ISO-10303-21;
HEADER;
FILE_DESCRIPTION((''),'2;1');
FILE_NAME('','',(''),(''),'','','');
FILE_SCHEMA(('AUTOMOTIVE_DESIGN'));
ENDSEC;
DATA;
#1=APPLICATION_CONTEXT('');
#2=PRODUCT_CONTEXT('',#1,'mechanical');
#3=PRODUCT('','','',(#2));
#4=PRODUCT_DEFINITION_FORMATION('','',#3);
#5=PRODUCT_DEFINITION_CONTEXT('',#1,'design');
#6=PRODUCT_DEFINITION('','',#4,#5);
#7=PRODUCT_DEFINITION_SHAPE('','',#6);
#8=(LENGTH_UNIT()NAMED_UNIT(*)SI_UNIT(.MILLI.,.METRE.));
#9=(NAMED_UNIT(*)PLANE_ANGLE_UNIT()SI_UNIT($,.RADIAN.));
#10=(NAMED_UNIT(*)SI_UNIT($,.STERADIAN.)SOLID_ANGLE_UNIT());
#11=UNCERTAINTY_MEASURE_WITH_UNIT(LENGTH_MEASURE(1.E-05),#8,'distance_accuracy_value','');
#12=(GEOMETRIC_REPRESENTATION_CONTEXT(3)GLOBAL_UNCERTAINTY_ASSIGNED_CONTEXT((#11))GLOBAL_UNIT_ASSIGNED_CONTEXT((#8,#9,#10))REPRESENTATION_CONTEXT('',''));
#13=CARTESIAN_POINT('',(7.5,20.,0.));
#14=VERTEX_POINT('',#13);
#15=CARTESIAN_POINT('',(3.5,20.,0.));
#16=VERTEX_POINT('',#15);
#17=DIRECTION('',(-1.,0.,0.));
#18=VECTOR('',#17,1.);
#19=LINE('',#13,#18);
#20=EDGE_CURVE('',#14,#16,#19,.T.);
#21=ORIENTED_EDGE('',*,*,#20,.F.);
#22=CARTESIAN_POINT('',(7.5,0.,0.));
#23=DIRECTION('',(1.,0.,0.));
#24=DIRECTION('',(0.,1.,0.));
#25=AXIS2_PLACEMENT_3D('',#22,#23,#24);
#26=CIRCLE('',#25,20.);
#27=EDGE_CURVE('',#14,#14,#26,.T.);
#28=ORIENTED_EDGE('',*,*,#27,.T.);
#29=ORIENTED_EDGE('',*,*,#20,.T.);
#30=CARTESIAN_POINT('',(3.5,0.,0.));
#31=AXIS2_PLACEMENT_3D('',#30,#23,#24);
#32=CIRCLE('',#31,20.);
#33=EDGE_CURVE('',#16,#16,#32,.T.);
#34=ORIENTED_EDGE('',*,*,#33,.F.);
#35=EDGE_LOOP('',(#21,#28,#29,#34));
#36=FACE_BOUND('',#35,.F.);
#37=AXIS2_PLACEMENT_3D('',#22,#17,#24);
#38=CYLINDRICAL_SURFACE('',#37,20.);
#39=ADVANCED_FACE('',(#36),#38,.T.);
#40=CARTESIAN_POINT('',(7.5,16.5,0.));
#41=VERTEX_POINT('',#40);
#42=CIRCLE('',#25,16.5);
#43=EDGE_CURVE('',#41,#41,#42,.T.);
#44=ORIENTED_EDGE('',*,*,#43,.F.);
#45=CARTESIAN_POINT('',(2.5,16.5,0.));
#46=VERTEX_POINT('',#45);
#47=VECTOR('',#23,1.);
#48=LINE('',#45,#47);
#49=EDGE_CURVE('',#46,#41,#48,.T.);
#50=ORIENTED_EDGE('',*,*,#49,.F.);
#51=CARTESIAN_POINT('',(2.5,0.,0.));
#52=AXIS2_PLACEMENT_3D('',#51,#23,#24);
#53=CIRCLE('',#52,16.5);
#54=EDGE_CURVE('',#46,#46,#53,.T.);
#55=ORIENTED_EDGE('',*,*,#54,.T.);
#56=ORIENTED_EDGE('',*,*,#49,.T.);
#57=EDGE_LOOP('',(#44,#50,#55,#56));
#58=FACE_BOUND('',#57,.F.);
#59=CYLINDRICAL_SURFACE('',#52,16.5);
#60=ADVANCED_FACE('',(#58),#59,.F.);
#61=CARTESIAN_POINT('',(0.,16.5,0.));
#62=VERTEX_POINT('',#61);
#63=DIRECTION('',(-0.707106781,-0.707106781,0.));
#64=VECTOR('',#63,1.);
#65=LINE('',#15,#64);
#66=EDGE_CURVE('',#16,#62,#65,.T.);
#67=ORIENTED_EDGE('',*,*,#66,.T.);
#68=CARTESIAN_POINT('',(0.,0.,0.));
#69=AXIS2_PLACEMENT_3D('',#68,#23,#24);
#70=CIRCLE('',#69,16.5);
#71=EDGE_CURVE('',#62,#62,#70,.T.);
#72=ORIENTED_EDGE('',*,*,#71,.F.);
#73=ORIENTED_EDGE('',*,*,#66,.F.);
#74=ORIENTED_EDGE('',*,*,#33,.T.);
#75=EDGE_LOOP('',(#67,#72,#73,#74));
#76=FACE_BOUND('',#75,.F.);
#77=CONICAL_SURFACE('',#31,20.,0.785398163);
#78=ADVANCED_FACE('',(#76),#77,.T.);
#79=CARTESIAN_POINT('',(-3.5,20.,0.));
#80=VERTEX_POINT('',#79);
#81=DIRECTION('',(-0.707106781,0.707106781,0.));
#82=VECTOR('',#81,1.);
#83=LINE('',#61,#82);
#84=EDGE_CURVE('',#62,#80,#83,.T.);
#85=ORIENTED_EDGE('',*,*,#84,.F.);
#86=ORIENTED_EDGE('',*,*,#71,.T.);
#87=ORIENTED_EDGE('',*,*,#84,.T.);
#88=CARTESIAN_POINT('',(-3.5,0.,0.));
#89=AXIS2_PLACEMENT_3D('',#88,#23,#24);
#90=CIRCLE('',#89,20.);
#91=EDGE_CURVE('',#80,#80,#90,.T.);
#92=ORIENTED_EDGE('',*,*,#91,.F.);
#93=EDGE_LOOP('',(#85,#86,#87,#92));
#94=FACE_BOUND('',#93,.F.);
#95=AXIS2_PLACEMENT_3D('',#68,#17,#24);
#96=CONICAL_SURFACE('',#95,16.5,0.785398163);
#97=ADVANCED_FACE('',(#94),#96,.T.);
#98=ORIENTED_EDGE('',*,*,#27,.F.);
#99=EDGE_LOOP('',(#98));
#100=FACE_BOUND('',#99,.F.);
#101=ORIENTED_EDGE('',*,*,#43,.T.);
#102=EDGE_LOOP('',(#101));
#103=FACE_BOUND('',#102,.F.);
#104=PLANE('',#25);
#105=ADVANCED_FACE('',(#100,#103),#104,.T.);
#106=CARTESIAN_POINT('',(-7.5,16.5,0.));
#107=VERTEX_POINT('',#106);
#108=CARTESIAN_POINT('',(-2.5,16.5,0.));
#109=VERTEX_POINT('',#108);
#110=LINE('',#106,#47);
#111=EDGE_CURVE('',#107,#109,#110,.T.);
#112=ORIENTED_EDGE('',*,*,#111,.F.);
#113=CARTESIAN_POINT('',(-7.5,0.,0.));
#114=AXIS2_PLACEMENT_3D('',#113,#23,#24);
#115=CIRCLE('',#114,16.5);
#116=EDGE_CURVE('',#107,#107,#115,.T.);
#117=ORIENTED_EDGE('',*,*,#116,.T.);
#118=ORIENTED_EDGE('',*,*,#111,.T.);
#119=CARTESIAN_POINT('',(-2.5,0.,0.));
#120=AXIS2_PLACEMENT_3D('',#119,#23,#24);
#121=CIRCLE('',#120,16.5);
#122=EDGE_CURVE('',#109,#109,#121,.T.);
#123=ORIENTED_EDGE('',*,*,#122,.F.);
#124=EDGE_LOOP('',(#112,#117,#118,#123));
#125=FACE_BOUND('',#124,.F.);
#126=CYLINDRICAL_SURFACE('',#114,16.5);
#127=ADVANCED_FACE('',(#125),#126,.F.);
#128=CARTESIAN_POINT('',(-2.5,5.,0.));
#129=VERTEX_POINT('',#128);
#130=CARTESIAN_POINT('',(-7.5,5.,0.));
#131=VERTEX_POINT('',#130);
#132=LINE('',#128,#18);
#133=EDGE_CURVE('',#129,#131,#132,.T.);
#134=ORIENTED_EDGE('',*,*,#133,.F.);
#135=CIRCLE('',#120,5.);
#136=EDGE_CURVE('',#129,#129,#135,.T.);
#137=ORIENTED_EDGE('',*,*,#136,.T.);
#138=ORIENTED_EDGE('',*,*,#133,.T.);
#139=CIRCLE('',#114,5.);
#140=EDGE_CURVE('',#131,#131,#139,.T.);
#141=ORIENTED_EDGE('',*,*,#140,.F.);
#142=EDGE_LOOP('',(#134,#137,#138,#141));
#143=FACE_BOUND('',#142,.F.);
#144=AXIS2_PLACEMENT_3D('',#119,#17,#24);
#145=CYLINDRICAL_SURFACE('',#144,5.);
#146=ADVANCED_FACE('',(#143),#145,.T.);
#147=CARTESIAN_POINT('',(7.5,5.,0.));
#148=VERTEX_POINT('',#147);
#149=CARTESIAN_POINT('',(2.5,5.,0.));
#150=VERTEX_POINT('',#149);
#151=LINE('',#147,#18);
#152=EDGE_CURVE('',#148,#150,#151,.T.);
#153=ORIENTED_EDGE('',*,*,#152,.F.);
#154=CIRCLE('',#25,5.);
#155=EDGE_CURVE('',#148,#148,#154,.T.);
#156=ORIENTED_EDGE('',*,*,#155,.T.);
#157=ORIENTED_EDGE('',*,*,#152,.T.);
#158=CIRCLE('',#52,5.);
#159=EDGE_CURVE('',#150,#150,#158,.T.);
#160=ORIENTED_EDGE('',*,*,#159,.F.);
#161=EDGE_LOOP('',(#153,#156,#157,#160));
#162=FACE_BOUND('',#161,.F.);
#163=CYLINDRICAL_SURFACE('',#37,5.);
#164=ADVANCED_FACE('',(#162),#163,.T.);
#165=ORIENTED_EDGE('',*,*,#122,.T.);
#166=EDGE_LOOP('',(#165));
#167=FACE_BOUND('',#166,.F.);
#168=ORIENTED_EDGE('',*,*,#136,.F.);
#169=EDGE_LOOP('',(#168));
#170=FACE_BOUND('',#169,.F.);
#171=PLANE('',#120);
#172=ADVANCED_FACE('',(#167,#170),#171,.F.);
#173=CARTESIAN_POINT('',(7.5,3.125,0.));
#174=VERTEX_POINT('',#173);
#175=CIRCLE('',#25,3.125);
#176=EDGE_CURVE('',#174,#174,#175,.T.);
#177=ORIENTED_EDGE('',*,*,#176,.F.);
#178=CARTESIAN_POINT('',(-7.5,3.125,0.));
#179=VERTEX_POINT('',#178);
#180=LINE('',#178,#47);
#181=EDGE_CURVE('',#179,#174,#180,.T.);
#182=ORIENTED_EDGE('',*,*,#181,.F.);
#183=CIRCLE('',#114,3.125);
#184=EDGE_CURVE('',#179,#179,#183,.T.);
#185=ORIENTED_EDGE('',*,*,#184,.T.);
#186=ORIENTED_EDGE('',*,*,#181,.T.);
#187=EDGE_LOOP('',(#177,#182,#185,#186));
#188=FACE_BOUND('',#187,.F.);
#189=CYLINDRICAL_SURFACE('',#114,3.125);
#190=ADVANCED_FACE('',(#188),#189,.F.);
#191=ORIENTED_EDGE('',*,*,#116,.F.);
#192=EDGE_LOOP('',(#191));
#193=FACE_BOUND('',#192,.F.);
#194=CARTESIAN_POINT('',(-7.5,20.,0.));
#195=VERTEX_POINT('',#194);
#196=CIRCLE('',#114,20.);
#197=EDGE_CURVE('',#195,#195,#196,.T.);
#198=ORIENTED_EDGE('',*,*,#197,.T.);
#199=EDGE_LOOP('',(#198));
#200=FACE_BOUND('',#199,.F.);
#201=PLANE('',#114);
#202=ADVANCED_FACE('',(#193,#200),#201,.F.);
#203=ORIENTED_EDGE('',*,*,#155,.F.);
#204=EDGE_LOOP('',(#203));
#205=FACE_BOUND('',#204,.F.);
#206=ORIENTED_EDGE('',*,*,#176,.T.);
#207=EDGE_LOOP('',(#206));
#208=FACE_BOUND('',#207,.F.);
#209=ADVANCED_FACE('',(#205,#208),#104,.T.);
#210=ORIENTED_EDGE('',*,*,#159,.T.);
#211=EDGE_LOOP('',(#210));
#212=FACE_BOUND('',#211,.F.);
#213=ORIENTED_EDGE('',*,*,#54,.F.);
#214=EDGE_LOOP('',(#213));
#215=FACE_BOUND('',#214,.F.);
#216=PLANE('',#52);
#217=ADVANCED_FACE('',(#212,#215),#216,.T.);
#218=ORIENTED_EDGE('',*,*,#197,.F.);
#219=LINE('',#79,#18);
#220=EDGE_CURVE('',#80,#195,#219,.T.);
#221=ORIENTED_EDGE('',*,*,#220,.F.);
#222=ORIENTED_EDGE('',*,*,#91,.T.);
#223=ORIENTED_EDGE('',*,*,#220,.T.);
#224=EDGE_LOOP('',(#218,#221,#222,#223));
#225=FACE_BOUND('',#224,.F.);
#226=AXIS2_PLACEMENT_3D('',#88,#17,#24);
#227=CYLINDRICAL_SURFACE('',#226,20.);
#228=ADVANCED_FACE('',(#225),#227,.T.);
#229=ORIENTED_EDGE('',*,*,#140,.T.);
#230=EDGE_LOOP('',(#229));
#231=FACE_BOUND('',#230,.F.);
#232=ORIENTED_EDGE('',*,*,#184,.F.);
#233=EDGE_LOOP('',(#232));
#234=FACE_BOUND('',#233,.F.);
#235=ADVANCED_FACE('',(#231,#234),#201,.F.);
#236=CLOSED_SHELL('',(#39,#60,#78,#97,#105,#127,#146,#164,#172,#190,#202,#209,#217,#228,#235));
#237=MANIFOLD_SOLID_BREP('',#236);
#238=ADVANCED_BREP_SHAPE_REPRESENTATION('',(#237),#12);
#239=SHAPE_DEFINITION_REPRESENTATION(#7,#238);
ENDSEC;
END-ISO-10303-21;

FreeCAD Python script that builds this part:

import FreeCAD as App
import Part
import Sketcher
from FreeCAD import Vector
Q = App.Units.Quantity


def add_polygon(sketch, points):
    """Adds a closed chain of lines whose ends are joined by coincident constraints."""
    first, n = sketch.GeometryCount, len(points)
    for a, b in zip(points, points[1:] + points[:1]):
        sketch.addGeometry(Part.LineSegment(App.Vector(*a, 0), App.Vector(*b, 0)), False)
    for i in range(n):
        sketch.addConstraint(Sketcher.Constraint("Coincident", first + i, 2, first + (i + 1) % n, 1))

doc = App.newDocument("Part")
body = doc.addObject("PartDesign::Body", "Body")

# Sketch on XY plane
sketch1 = body.newObject("Sketcher::SketchObject", "Sketch")
sketch1.AttachmentSupport = (doc.getObject("XY_Plane"), [""])
sketch1.MapMode = "FlatFace"
add_polygon(sketch1, [(-7.5, 3.125), (7.5, 3.125), (7.5, 5), (2.5, 5), (2.5, 16.5), (7.5, 16.5), (7.5, 20), (3.5, 20), (0, 16.5), (-3.5, 20), (-7.5, 20), (-7.5, 16.5), (-2.5, 16.5), (-2.5, 5), (-7.5, 5)])  # lines 0-14
sketch1.addConstraint([
    Sketcher.Constraint("Horizontal", 0),
    Sketcher.Constraint("Vertical", 1),
    Sketcher.Constraint("Horizontal", 2),
    Sketcher.Constraint("Vertical", 3),
    Sketcher.Constraint("Horizontal", 4),
    Sketcher.Constraint("Vertical", 5),
    Sketcher.Constraint("Horizontal", 6),
    Sketcher.Constraint("Horizontal", 9),
    Sketcher.Constraint("Vertical", 10),
    Sketcher.Constraint("Horizontal", 11),
    Sketcher.Constraint("Vertical", 12),
    Sketcher.Constraint("Horizontal", 13),
    Sketcher.Constraint("Vertical", 14),
    Sketcher.Constraint("Symmetric", 6, 2, 8, 2, -2),
    Sketcher.Constraint("Symmetric", 4, 2, 10, 2, -2),
    Sketcher.Constraint("Symmetric", 2, 2, 12, 2, -2),
    Sketcher.Constraint("PointOnObject", 7, 2, -2),
    Sketcher.Constraint("Perpendicular", 7, 8),
    Sketcher.Constraint("Horizontal", 4, 2, 7, 2),
    Sketcher.Constraint("Vertical", 1, 2, 4, 2),
    Sketcher.Constraint("Vertical", 10, 2, 13, 2),
    Sketcher.Constraint("DistanceX", 0, 1, 0, 2, Q("15 mm")),
    Sketcher.Constraint("DistanceX", 2, 2, 2, 1, Q("5 mm")),
    Sketcher.Constraint("DistanceX", 6, 2, 6, 1, Q("4 mm")),
    Sketcher.Constraint("DistanceY", 3, 1, 3, 2, Q("11.5 mm")),
    Sketcher.Constraint("DistanceY", -1, 1, 1, 2, Q("5 mm")),
    Sketcher.Constraint("DistanceY", 1, 1, 1, 2, Q("1.875 mm")),
])
revolution = body.newObject("PartDesign::Revolution", "Revolution")
revolution.Profile = sketch1
revolution.ReferenceAxis = (sketch1, ["H_Axis"])
revolution.Angle = 360

doc.recompute()
